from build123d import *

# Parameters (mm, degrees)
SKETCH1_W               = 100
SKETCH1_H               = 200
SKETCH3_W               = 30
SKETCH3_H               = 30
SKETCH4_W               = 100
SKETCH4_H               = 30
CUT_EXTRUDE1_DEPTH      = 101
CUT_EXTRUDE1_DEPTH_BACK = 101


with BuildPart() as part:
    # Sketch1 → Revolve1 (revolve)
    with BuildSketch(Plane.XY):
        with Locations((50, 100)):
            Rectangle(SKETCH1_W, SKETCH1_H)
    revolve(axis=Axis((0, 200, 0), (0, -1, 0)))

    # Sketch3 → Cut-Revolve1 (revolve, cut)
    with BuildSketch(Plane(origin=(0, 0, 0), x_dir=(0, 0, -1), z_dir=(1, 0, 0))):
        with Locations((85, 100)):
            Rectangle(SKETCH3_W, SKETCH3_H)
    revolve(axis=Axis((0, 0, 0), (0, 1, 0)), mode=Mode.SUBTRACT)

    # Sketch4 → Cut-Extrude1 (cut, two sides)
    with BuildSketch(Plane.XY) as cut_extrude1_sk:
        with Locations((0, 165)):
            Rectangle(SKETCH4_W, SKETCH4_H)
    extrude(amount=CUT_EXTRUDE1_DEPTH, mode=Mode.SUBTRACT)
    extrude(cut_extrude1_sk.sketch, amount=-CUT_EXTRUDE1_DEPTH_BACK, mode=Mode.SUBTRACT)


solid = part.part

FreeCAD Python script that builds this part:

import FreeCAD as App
import Part
import Sketcher
from FreeCAD import Vector
Q = App.Units.Quantity


def add_polygon(sketch, points):
    """Adds a closed chain of lines whose ends are joined by coincident constraints."""
    first, n = sketch.GeometryCount, len(points)
    for a, b in zip(points, points[1:] + points[:1]):
        sketch.addGeometry(Part.LineSegment(App.Vector(*a, 0), App.Vector(*b, 0)), False)
    for i in range(n):
        sketch.addConstraint(Sketcher.Constraint("Coincident", first + i, 2, first + (i + 1) % n, 1))

doc = App.newDocument("Part")
body = doc.addObject("PartDesign::Body", "Body")

# Sketch on XY plane
sketch1 = body.newObject("Sketcher::SketchObject", "Sketch")
sketch1.AttachmentSupport = (doc.getObject("XY_Plane"), [""])
sketch1.MapMode = "FlatFace"
add_polygon(sketch1, [(0, 200), (0, 0), (100, 0), (100, 200)])  # lines 0-3
sketch1.addConstraint([
    Sketcher.Constraint("Vertical", 0),
    Sketcher.Constraint("Horizontal", 1),
    Sketcher.Constraint("Vertical", 2),
    Sketcher.Constraint("Horizontal", 3),
    Sketcher.Constraint("Coincident", 0, 2, -1, 1),
    Sketcher.Constraint("DistanceX", 1, 1, 1, 2, Q("100 mm")),
    Sketcher.Constraint("DistanceY", 0, 2, 0, 1, Q("200 mm")),
])
revolution = body.newObject("PartDesign::Revolution", "Revolution")
revolution.Profile = sketch1
revolution.ReferenceAxis = (sketch1, ["V_Axis"])
revolution.Angle = 360

# Sketch on YZ plane
sketch2 = body.newObject("Sketcher::SketchObject", "Sketch001")
sketch2.AttachmentSupport = (doc.getObject("YZ_Plane"), [""])
sketch2.MapMode = "FlatFace"
add_polygon(sketch2, [(115, -70), (85, -70), (85, -100), (115, -100)])  # lines 0-3
sketch2.addConstraint([
    Sketcher.Constraint("Horizontal", 0),
    Sketcher.Constraint("Vertical", 1),
    Sketcher.Constraint("Horizontal", 2),
    Sketcher.Constraint("Vertical", 3),
    Sketcher.Constraint("Equal", 2, 1),
    Sketcher.Constraint("DistanceX", 0, 2, 0, 1, Q("30 mm")),
    Sketcher.Constraint("DistanceX", -1, 1, 0, 2, Q("85 mm")),
    Sketcher.Constraint("DistanceY", 0, 2, -1, 1, Q("70 mm")),
])
groove = body.newObject("PartDesign::Groove", "Groove")
groove.Profile = sketch2
groove.ReferenceAxis = (sketch2, ["H_Axis"])
groove.Angle = 360

# Sketch on XY plane
sketch3 = body.newObject("Sketcher::SketchObject", "Sketch002")
sketch3.AttachmentSupport = (doc.getObject("XY_Plane"), [""])
sketch3.MapMode = "FlatFace"
add_polygon(sketch3, [(-50, 180), (-50, 150), (50, 150), (50, 180)])  # lines 0-3
sketch3.addConstraint([
    Sketcher.Constraint("Vertical", 0),
    Sketcher.Constraint("Horizontal", 1),
    Sketcher.Constraint("Vertical", 2),
    Sketcher.Constraint("Horizontal", 3),
    Sketcher.Constraint("DistanceX", 1, 1, 1, 2, Q("100 mm")),
    Sketcher.Constraint("DistanceY", 0, 2, 0, 1, Q("30 mm")),
    Sketcher.Constraint("DistanceX", 0, 2, -1, 1, Q("50 mm")),
    Sketcher.Constraint("DistanceY", -1, 1, 0, 2, Q("150 mm")),
])
pocket1 = body.newObject("PartDesign::Pocket", "Pocket")
pocket1.Profile = sketch3
pocket1.Type = "ThroughAll"
pocket1.Midplane = True

doc.recompute()
